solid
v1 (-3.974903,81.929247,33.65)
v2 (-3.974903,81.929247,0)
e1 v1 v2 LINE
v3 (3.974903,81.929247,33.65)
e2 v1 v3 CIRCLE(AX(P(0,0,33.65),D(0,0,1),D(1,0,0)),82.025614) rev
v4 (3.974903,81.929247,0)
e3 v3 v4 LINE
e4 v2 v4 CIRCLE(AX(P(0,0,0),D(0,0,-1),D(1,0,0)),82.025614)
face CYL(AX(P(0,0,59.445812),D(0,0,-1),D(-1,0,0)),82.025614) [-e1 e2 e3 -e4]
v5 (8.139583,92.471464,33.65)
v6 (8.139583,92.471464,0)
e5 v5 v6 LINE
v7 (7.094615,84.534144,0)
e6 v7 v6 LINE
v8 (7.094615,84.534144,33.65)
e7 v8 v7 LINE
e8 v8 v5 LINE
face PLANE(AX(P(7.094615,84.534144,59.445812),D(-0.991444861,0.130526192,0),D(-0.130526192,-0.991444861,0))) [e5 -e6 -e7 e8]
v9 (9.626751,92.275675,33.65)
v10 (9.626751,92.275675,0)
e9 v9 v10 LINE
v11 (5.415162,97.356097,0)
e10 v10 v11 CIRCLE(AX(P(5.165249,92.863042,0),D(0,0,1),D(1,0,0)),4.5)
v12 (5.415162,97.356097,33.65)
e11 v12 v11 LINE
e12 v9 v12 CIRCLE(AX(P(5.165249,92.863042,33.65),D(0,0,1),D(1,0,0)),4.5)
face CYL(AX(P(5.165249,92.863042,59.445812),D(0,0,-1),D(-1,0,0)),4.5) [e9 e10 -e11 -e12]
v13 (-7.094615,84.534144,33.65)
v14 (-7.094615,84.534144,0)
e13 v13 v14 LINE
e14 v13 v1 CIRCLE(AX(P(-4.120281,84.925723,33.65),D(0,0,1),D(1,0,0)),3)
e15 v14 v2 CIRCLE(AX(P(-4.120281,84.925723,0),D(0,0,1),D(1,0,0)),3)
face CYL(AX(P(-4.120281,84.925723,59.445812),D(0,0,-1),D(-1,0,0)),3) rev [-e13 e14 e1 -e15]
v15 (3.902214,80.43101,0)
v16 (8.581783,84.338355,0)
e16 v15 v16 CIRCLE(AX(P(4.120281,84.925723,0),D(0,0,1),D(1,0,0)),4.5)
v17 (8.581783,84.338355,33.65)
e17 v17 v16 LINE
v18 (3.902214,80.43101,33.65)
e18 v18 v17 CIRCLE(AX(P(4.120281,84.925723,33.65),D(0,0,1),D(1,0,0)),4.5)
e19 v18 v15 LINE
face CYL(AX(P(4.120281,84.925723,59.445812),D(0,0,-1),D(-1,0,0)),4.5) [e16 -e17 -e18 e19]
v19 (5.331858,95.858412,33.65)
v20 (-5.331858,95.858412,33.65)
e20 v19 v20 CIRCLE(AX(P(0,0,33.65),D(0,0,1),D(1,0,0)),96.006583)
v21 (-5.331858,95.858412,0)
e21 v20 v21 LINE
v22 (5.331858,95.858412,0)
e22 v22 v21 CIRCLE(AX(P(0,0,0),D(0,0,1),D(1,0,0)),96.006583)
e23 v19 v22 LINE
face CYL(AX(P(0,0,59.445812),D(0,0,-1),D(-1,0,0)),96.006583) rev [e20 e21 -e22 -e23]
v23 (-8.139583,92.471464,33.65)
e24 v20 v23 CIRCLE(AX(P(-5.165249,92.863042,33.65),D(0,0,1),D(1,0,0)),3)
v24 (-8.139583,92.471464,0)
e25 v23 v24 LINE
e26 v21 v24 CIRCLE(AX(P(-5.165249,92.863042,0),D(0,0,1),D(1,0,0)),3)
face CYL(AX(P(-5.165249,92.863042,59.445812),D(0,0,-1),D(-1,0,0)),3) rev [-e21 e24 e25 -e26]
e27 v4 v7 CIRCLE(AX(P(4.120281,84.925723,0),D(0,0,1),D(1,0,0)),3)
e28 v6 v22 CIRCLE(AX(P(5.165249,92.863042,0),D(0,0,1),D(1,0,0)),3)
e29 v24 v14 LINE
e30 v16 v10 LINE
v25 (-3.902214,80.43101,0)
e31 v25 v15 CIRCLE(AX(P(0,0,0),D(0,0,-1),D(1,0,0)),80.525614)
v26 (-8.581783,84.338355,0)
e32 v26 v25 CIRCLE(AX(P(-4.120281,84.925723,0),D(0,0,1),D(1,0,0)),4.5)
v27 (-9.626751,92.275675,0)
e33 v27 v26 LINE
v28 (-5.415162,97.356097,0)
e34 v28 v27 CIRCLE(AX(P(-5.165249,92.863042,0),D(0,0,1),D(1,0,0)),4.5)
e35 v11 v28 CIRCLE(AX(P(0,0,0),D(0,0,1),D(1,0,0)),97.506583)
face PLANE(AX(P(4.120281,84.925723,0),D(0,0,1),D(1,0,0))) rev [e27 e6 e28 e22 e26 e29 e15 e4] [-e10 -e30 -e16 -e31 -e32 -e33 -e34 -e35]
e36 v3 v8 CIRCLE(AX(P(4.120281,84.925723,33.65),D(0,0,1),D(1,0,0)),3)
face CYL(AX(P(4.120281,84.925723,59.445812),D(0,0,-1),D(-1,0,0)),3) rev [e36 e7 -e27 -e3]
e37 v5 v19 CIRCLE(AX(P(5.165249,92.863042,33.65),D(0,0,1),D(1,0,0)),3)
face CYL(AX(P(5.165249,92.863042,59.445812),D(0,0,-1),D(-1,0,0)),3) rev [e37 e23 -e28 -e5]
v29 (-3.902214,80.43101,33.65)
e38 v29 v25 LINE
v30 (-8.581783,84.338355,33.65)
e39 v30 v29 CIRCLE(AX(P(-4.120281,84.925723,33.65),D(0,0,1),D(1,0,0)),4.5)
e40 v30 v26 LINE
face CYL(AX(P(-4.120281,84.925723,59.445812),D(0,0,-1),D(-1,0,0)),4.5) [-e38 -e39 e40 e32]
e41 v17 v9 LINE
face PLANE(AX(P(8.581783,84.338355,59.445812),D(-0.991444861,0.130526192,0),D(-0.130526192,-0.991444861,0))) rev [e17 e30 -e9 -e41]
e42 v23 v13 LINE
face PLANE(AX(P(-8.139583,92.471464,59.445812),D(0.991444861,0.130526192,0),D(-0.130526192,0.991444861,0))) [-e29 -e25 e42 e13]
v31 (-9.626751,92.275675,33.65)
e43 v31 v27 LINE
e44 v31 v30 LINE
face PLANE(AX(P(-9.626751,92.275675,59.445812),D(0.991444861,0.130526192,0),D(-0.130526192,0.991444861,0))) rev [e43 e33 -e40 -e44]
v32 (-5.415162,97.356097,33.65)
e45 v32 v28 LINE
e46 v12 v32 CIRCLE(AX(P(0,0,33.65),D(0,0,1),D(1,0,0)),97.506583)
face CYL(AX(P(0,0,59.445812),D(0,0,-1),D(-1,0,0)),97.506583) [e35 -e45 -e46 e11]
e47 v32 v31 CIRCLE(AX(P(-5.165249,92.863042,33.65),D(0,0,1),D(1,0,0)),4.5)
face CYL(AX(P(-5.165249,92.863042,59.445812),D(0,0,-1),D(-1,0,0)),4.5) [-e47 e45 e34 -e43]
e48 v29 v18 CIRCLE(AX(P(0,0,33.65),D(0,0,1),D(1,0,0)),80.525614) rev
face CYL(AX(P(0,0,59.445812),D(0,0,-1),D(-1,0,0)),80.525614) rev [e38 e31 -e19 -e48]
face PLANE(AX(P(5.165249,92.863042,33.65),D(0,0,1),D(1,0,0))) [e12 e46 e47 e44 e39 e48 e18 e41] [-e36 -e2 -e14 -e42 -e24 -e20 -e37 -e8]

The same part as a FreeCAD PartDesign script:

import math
import FreeCAD as App
import Part
import Sketcher
Q = App.Units.Quantity

doc = App.newDocument("Part")
body = doc.addObject("PartDesign::Body", "Body")

# Sketch on XY plane
sketch1 = body.newObject("Sketcher::SketchObject", "Sketch")
sketch1.AttachmentSupport = (doc.getObject("XY_Plane"), [""])
sketch1.MapMode = "FlatFace"
sketch1.addGeometry([
    Part.LineSegment(App.Vector(8.581783, 84.338355, 0), App.Vector(9.626751, 92.275675, 0)),  # 0
    Part.ArcOfCircle(Part.Circle(App.Vector(5.165249, 92.863042, 0), App.Vector(0, 0, 1), 4.5), math.radians(-7.5), math.radians(86.816362)),  # 1
    Part.ArcOfCircle(Part.Circle(App.Vector(0, 0, 0), App.Vector(0, 0, 1), 97.506583), math.radians(86.816362), math.radians(93.183638)),  # 2
    Part.ArcOfCircle(Part.Circle(App.Vector(-5.165249, 92.863042, 0), App.Vector(0, 0, 1), 4.5), math.radians(93.183638), math.radians(187.5)),  # 3
    Part.LineSegment(App.Vector(-9.626751, 92.275675, 0), App.Vector(-8.581783, 84.338355, 0)),  # 4
    Part.ArcOfCircle(Part.Circle(App.Vector(-4.120281, 84.925723, 0), App.Vector(0, 0, 1), 4.5), math.radians(-172.5), math.radians(-87.222399)),  # 5
    Part.ArcOfCircle(Part.Circle(App.Vector(0, 0.000001, 0), App.Vector(0, 0, 1), 80.525614), math.radians(87.222399), math.radians(92.777601)),  # 6
    Part.ArcOfCircle(Part.Circle(App.Vector(4.120281, 84.925723, 0), App.Vector(0, 0, 1), 4.5), math.radians(-92.777601), math.radians(-7.5)),  # 7
    Part.LineSegment(App.Vector(-7.094615, 84.534144, 0), App.Vector(-8.139583, 92.471464, 0)),  # 8
    Part.ArcOfCircle(Part.Circle(App.Vector(-5.165249, 92.863042, 0), App.Vector(0, 0, 1), 3), math.radians(93.183638), math.radians(187.5)),  # 9
    Part.ArcOfCircle(Part.Circle(App.Vector(0, 0, 0), App.Vector(0, 0, 1), 96.006583), math.radians(86.816362), math.radians(93.183638)),  # 10
    Part.ArcOfCircle(Part.Circle(App.Vector(5.165249, 92.863042, 0), App.Vector(0, 0, 1), 3), math.radians(-7.5), math.radians(86.816362)),  # 11
    Part.LineSegment(App.Vector(8.139583, 92.471464, 0), App.Vector(7.094615, 84.534144, 0)),  # 12
    Part.ArcOfCircle(Part.Circle(App.Vector(4.120281, 84.925723, 0), App.Vector(0, 0, 1), 3), math.radians(-92.777601), math.radians(-7.5)),  # 13
    Part.ArcOfCircle(Part.Circle(App.Vector(0, 0, 0), App.Vector(0, 0, 1), 82.025614), math.radians(87.222399), math.radians(92.777601)),  # 14
    Part.ArcOfCircle(Part.Circle(App.Vector(-4.120281, 84.925723, 0), App.Vector(0, 0, 1), 3), math.radians(-172.5), math.radians(-87.222399)),  # 15
], False)
sketch1.addConstraint([
    Sketcher.Constraint("Tangent", 0, 2, 1, 1),
    Sketcher.Constraint("Tangent", 1, 2, 2, 1),
    Sketcher.Constraint("Tangent", 2, 2, 3, 1),
    Sketcher.Constraint("Tangent", 3, 2, 4, 1),
    Sketcher.Constraint("Tangent", 4, 2, 5, 1),
    Sketcher.Constraint("Tangent", 5, 2, 6, 2),
    Sketcher.Constraint("Tangent", 6, 1, 7, 1),
    Sketcher.Constraint("Tangent", 7, 2, 0, 1),
    Sketcher.Constraint("Tangent", 8, 2, 9, 2),
    Sketcher.Constraint("Tangent", 9, 1, 10, 2),
    Sketcher.Constraint("Tangent", 10, 1, 11, 2),
    Sketcher.Constraint("Tangent", 11, 1, 12, 1),
    Sketcher.Constraint("Tangent", 12, 2, 13, 2),
    Sketcher.Constraint("Tangent", 13, 1, 14, 1),
    Sketcher.Constraint("Tangent", 14, 2, 15, 2),
    Sketcher.Constraint("Tangent", 15, 1, 8, 1),
    Sketcher.Constraint("Coincident", 2, 3, -1, 1),
    Sketcher.Constraint("Coincident", 6, 3, -1, 1),
    Sketcher.Constraint("Coincident", 10, 3, -1, 1),
    Sketcher.Constraint("Coincident", 14, 3, -1, 1),
    Sketcher.Constraint("Coincident", 9, 3, 3, 3),
    Sketcher.Constraint("Coincident", 11, 3, 1, 3),
    Sketcher.Constraint("Coincident", 13, 3, 7, 3),
    Sketcher.Constraint("Coincident", 15, 3, 5, 3),
    Sketcher.Constraint("Equal", 1, 3),
    Sketcher.Constraint("Equal", 3, 5),
    Sketcher.Constraint("Equal", 5, 7),
    Sketcher.Constraint("Equal", 11, 13),
    Sketcher.Constraint("Symmetric", 0, 2, 3, 2, -2),
    Sketcher.Constraint("Radius", 9, Q("3 mm")),
    Sketcher.Constraint("Radius", 1, Q("4.5 mm")),
    Sketcher.Constraint("Angle", 0, Q("82.5 deg")),
    Sketcher.Constraint("Radius", 2, Q("97.506583 mm")),
    Sketcher.Constraint("Radius", 6, Q("80.525614 mm")),
    Sketcher.Constraint("DistanceX", 3, 3, 0, 2, Q("14.791999 mm")),
])
pad1 = body.newObject("PartDesign::Pad", "Pad")
pad1.Profile = sketch1
pad1.Length = 33.65

doc.recompute()
